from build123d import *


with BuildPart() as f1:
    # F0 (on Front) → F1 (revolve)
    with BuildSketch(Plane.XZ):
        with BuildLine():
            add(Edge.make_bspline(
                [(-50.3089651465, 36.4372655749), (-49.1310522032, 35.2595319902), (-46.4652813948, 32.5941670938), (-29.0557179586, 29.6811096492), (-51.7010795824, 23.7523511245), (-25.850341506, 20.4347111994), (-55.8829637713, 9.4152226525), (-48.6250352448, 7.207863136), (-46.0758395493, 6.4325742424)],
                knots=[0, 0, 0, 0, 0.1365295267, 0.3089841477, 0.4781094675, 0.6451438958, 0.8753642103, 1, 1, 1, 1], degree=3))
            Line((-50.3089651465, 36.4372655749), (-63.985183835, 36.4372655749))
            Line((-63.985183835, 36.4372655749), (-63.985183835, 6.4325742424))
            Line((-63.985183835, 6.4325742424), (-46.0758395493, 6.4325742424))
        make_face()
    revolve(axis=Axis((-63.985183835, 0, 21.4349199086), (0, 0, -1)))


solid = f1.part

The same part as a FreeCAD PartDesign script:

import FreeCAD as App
import Part
import Sketcher

doc = App.newDocument("Part")
body = doc.addObject("PartDesign::Body", "Body")

# Sketch on XZ plane
sketch1 = body.newObject("Sketcher::SketchObject", "Sketch")
sketch1.AttachmentSupport = (doc.getObject("XZ_Plane"), [""])
sketch1.MapMode = "FlatFace"
sketch1.addGeometry([
    Part.BSplineCurve([App.Vector(-50.308965, 36.437266, 0), App.Vector(-49.131052, 35.259532, 0), App.Vector(-46.465281, 32.594167, 0), App.Vector(-29.055718, 29.68111, 0), App.Vector(-51.70108, 23.752351, 0), App.Vector(-25.850342, 20.434711, 0), App.Vector(-55.882964, 9.415223, 0), App.Vector(-48.625035, 7.207863, 0), App.Vector(-46.07584, 6.432574, 0)], [4, 1, 1, 1, 1, 1, 4], [0, 0.136529527, 0.308984148, 0.478109467, 0.645143896, 0.87536421, 1], False, 3, [1, 1, 1, 1, 1, 1, 1, 1, 1], False),
    Part.LineSegment(App.Vector(-50.308965, 36.437266, 0), App.Vector(-63.985184, 36.437266, 0)),
    Part.LineSegment(App.Vector(-63.985184, 36.437266, 0), App.Vector(-63.985184, 6.432574, 0)),
    Part.LineSegment(App.Vector(-63.985184, 6.432574, 0), App.Vector(-46.07584, 6.432574, 0)),
], False)
sketch1.addGeometry(Part.LineSegment(App.Vector(-63.985184, 36.437266, 0), App.Vector(-63.985184, 6.432574, 0)), True)  # axis
sketch1.addConstraint([
    Sketcher.Constraint("Block", 0),
    Sketcher.Constraint("Coincident", 0, 1, 1, 1),
    Sketcher.Constraint("Coincident", 1, 2, 2, 1),
    Sketcher.Constraint("Coincident", 2, 2, 3, 1),
    Sketcher.Constraint("Coincident", 3, 2, 0, 2),
    Sketcher.Constraint("Horizontal", 1),
    Sketcher.Constraint("Vertical", 2),
    Sketcher.Constraint("Horizontal", 3),
    Sketcher.Constraint("Vertical", 4),
    Sketcher.Constraint("Coincident", 4, 1, 1, 2),
    Sketcher.Constraint("Horizontal", 3, 2, 4, 2),
    Sketcher.Constraint("DistanceX", 1, 2, 1, 1, 13.676219),
])
revolution = body.newObject("PartDesign::Revolution", "Revolution")
revolution.Profile = sketch1
revolution.ReferenceAxis = (sketch1, ["Axis0"])
revolution.Angle = 360

doc.recompute()
